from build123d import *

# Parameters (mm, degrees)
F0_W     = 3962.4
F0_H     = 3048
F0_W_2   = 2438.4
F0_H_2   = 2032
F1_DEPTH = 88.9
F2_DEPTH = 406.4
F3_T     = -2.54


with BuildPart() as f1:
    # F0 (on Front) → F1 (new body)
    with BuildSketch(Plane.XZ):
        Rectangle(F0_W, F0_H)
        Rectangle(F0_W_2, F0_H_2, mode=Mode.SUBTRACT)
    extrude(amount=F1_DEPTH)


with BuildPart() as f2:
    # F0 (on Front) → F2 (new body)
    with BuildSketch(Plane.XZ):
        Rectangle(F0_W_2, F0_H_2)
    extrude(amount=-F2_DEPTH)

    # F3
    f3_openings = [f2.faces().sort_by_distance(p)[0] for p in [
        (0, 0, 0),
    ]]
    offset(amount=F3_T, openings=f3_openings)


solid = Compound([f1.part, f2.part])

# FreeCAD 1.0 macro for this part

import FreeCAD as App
import Part
import Sketcher
Q = App.Units.Quantity


def faces_at(feature, points):
    """Names of the faces that lie closest to the given points."""
    faces = feature.Shape.Faces
    near = lambda p: min(range(len(faces)), key=lambda i: faces[i].distToShape(Part.Vertex(*p))[0])
    return sorted({f"Face{near(p) + 1}" for p in points})

doc = App.newDocument("Part")
body = doc.addObject("PartDesign::Body", "Body")

# Sketch on XZ plane
sketch1 = body.newObject("Sketcher::SketchObject", "Sketch")
sketch1.AttachmentSupport = (doc.getObject("XZ_Plane"), [""])
sketch1.MapMode = "FlatFace"
sketch1.addGeometry(Part.LineSegment(App.Vector(-1981.2, 1524, 0), App.Vector(-1981.2, -1524, 0)), False)
sketch1.addGeometry(Part.LineSegment(App.Vector(-1981.2, -1524, 0), App.Vector(1981.2, -1524, 0)), False)
sketch1.addGeometry(Part.LineSegment(App.Vector(1981.2, -1524, 0), App.Vector(1981.2, 1524, 0)), False)
sketch1.addGeometry(Part.LineSegment(App.Vector(1981.2, 1524, 0), App.Vector(-1981.2, 1524, 0)), False)
sketch1.addGeometry(Part.LineSegment(App.Vector(1219.2, -1016, 0), App.Vector(-1219.2, -1016, 0)), False)
sketch1.addGeometry(Part.LineSegment(App.Vector(-1219.2, -1016, 0), App.Vector(-1219.2, 1016, 0)), False)
sketch1.addGeometry(Part.LineSegment(App.Vector(-1219.2, 1016, 0), App.Vector(1219.2, 1016, 0)), False)
sketch1.addGeometry(Part.LineSegment(App.Vector(1219.2, 1016, 0), App.Vector(1219.2, -1016, 0)), False)
sketch1.addConstraint(Sketcher.Constraint("Coincident", 0, 2, 1, 1))
sketch1.addConstraint(Sketcher.Constraint("Coincident", 1, 2, 2, 1))
sketch1.addConstraint(Sketcher.Constraint("Coincident", 2, 2, 3, 1))
sketch1.addConstraint(Sketcher.Constraint("Coincident", 3, 2, 0, 1))
sketch1.addConstraint(Sketcher.Constraint("Coincident", 4, 2, 5, 1))
sketch1.addConstraint(Sketcher.Constraint("Coincident", 5, 2, 6, 1))
sketch1.addConstraint(Sketcher.Constraint("Coincident", 6, 2, 7, 1))
sketch1.addConstraint(Sketcher.Constraint("Coincident", 7, 2, 4, 1))
sketch1.addConstraint(Sketcher.Constraint("Vertical", 0))
sketch1.addConstraint(Sketcher.Constraint("Horizontal", 1))
sketch1.addConstraint(Sketcher.Constraint("Vertical", 2))
sketch1.addConstraint(Sketcher.Constraint("Horizontal", 3))
sketch1.addConstraint(Sketcher.Constraint("Horizontal", 4))
sketch1.addConstraint(Sketcher.Constraint("Vertical", 5))
sketch1.addConstraint(Sketcher.Constraint("Horizontal", 6))
sketch1.addConstraint(Sketcher.Constraint("Vertical", 7))
sketch1.addConstraint(Sketcher.Constraint("Symmetric", 0, 2, 2, 2, -1, 1))
sketch1.addConstraint(Sketcher.Constraint("Symmetric", 4, 2, 6, 2, -1, 1))
sketch1.addConstraint(Sketcher.Constraint("DistanceX", 1, 1, 1, 2, Q("156 in")))
sketch1.addConstraint(Sketcher.Constraint("DistanceX", 4, 2, 4, 1, Q("96 in")))
sketch1.addConstraint(Sketcher.Constraint("DistanceY", 0, 2, 0, 1, Q("120 in")))
sketch1.addConstraint(Sketcher.Constraint("DistanceY", 5, 1, 5, 2, Q("80 in")))
pad1 = body.newObject("PartDesign::Pad", "Pad")
pad1.Profile = sketch1
pad1.Length = Q("3.5 in")
body2 = doc.addObject("PartDesign::Body", "Body001")

# Sketch on XZ plane
sketch2 = body2.newObject("Sketcher::SketchObject", "Sketch001")
sketch2.AttachmentSupport = (doc.getObject("XZ_Plane001"), [""])
sketch2.MapMode = "FlatFace"
sketch2.addGeometry(Part.LineSegment(App.Vector(-1219.2, 1016, 0), App.Vector(-1219.2, -1016, 0)), False)
sketch2.addGeometry(Part.LineSegment(App.Vector(-1219.2, -1016, 0), App.Vector(1219.2, -1016, 0)), False)
sketch2.addGeometry(Part.LineSegment(App.Vector(1219.2, -1016, 0), App.Vector(1219.2, 1016, 0)), False)
sketch2.addGeometry(Part.LineSegment(App.Vector(1219.2, 1016, 0), App.Vector(-1219.2, 1016, 0)), False)
sketch2.addConstraint(Sketcher.Constraint("Coincident", 0, 2, 1, 1))
sketch2.addConstraint(Sketcher.Constraint("Coincident", 1, 2, 2, 1))
sketch2.addConstraint(Sketcher.Constraint("Coincident", 2, 2, 3, 1))
sketch2.addConstraint(Sketcher.Constraint("Coincident", 3, 2, 0, 1))
sketch2.addConstraint(Sketcher.Constraint("Vertical", 0))
sketch2.addConstraint(Sketcher.Constraint("Horizontal", 1))
sketch2.addConstraint(Sketcher.Constraint("Vertical", 2))
sketch2.addConstraint(Sketcher.Constraint("Horizontal", 3))
sketch2.addConstraint(Sketcher.Constraint("Symmetric", 0, 2, 2, 2, -1, 1))
sketch2.addConstraint(Sketcher.Constraint("DistanceX", 1, 1, 1, 2, Q("96 in")))
sketch2.addConstraint(Sketcher.Constraint("DistanceY", 0, 2, 0, 1, Q("80 in")))
pad2 = body2.newObject("PartDesign::Pad", "Pad001")
pad2.Profile = sketch2
pad2.Length = Q("16 in")
pad2.Reversed = True
doc.recompute()

thickness = body2.newObject("PartDesign::Thickness", "Thickness")
thickness.Base = (pad2, faces_at(pad2, [(0, 0, 0)]))
thickness.Value = Q("0.1 in")
thickness.Reversed = True
thickness.Join = "Arc"

doc.recompute()
